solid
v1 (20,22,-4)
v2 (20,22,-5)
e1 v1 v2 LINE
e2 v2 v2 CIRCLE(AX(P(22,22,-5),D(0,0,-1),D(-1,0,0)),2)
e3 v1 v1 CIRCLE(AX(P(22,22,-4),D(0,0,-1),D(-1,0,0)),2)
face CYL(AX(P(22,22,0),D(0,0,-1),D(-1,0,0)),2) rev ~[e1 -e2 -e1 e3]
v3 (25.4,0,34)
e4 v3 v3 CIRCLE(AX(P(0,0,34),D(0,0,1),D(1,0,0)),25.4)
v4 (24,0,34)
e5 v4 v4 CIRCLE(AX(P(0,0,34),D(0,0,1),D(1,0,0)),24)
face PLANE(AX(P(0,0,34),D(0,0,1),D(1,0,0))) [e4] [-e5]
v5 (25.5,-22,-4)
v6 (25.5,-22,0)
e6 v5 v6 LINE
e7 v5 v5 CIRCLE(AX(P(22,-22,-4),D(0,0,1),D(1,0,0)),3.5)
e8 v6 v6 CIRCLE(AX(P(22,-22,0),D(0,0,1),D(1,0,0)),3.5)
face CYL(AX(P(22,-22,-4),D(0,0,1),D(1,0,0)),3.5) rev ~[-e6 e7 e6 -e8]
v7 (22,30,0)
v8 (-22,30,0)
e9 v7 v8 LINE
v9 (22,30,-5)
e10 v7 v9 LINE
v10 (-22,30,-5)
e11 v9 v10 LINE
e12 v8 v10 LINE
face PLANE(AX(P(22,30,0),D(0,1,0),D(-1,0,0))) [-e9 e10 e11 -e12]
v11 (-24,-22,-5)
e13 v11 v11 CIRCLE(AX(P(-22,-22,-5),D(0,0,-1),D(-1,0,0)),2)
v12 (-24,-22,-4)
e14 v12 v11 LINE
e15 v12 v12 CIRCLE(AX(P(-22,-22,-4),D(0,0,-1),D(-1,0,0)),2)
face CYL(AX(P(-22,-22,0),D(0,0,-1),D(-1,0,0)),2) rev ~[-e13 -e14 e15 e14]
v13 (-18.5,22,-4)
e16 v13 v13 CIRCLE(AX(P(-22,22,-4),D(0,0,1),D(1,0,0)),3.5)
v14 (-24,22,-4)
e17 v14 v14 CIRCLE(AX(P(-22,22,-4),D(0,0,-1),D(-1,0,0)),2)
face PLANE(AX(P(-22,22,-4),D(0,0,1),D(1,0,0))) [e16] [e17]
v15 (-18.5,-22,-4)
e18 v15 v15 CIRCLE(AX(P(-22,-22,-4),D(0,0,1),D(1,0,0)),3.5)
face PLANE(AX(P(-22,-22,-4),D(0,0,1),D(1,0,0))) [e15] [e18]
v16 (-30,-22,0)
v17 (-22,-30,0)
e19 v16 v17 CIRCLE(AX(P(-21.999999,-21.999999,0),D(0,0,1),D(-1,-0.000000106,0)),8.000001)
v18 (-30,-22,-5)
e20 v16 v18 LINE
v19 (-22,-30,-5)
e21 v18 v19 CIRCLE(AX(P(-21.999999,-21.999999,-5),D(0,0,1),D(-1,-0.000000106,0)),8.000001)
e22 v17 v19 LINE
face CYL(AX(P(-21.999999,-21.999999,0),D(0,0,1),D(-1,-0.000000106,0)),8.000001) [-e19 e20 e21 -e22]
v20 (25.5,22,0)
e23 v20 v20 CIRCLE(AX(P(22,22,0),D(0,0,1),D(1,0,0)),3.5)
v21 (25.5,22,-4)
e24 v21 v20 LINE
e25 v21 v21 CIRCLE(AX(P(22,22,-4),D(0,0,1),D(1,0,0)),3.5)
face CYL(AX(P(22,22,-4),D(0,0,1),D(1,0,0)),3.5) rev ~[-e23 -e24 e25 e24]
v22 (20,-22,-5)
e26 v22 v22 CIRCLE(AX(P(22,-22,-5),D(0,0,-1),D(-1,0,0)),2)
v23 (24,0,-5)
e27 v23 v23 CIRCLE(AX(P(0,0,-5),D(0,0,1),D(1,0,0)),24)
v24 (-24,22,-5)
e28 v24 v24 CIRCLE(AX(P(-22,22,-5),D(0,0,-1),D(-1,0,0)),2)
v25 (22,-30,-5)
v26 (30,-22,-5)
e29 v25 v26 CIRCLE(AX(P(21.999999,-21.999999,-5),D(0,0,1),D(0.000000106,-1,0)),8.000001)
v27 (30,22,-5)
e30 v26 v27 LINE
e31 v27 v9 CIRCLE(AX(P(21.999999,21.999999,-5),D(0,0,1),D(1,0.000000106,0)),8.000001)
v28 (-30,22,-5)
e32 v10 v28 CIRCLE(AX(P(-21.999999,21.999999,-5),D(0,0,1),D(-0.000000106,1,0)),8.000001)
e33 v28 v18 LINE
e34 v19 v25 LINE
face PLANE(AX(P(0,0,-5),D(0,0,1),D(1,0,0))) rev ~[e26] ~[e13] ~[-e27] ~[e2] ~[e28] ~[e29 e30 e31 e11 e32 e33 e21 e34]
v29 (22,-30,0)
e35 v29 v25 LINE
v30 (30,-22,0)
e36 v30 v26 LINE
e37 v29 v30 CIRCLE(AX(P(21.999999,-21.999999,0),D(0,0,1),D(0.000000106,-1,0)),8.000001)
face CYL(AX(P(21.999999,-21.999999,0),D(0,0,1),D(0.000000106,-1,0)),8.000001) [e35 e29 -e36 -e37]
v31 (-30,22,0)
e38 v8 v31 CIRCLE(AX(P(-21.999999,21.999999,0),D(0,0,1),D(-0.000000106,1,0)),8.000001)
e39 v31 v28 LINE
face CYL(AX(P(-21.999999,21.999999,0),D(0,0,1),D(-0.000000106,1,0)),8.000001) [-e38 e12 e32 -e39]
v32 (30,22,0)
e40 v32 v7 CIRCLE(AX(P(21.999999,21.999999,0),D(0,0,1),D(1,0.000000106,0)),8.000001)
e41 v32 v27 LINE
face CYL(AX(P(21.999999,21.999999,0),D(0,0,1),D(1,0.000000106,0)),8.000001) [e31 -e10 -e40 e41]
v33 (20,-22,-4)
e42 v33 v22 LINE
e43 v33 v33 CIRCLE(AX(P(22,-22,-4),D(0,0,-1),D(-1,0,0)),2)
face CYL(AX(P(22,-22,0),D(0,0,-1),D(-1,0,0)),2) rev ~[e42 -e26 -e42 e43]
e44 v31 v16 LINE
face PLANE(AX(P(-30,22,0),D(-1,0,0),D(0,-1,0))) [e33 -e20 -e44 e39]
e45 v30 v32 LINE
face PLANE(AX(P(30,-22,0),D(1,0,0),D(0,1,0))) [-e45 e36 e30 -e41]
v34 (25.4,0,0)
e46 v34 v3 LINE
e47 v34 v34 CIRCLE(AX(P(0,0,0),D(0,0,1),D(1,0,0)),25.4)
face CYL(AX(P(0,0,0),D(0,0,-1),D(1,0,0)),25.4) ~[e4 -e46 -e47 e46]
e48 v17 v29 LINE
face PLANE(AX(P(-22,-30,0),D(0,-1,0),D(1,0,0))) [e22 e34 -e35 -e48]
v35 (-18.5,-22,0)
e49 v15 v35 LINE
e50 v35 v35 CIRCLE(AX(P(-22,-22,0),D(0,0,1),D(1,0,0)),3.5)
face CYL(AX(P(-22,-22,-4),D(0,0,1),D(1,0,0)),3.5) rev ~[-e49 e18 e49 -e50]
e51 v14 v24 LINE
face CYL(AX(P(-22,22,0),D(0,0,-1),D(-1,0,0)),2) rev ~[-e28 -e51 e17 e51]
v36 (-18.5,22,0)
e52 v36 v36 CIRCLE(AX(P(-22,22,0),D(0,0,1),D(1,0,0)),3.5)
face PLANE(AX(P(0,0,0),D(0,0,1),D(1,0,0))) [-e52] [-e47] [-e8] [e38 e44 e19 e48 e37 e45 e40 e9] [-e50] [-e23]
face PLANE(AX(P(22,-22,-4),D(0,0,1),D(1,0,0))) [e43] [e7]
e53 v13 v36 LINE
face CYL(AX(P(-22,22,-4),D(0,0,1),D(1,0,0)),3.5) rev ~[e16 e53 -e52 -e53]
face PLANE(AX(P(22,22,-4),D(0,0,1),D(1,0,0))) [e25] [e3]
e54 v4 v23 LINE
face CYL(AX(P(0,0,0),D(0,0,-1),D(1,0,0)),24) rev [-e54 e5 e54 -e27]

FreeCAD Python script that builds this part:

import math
import FreeCAD as App
import Part
import Sketcher
from FreeCAD import Vector

doc = App.newDocument("Part")
body = doc.addObject("PartDesign::Body", "Body")

sketch1 = doc.addObject("Sketcher::SketchObject", "Sketch")
body.addObject(sketch1)
sketch1.AttachmentSupport = (doc.XY_Plane, [""])
sketch1.MapMode = "FlatFace"
sketch1.addGeometry(Part.LineSegment(Vector(22, 30, 0), Vector(-22, 30, 0)), False)
sketch1.addGeometry(Part.ArcOfCircle(Part.Circle(Vector(-22, 22, 0), Vector(0, 0, 1), 8), math.radians(90), math.radians(180)), False)
sketch1.addGeometry(Part.LineSegment(Vector(-30, 22, 0), Vector(-30, -22, 0)), False)
sketch1.addGeometry(Part.ArcOfCircle(Part.Circle(Vector(-22, -22, 0), Vector(0, 0, 1), 8), math.radians(-180), math.radians(-90)), False)
sketch1.addGeometry(Part.LineSegment(Vector(-22, -30, 0), Vector(22, -30, 0)), False)
sketch1.addGeometry(Part.ArcOfCircle(Part.Circle(Vector(22, -22, 0), Vector(0, 0, 1), 8), math.radians(-90), math.radians(0)), False)
sketch1.addGeometry(Part.LineSegment(Vector(30, -22, 0), Vector(30, 22, 0)), False)
sketch1.addGeometry(Part.ArcOfCircle(Part.Circle(Vector(22, 22, 0), Vector(0, 0, 1), 8), math.radians(0), math.radians(90)), False)
sketch1.addGeometry(Part.Circle(Vector(0, 0, 0), Vector(0, 0, 1), 24), False)
sketch1.addConstraint(Sketcher.Constraint("Tangent", 0, 2, 1, 1))
sketch1.addConstraint(Sketcher.Constraint("Tangent", 1, 2, 2, 1))
sketch1.addConstraint(Sketcher.Constraint("Tangent", 2, 2, 3, 1))
sketch1.addConstraint(Sketcher.Constraint("Tangent", 3, 2, 4, 1))
sketch1.addConstraint(Sketcher.Constraint("Tangent", 4, 2, 5, 1))
sketch1.addConstraint(Sketcher.Constraint("Tangent", 5, 2, 6, 1))
sketch1.addConstraint(Sketcher.Constraint("Tangent", 6, 2, 7, 1))
sketch1.addConstraint(Sketcher.Constraint("Tangent", 7, 2, 0, 1))
sketch1.addConstraint(Sketcher.Constraint("Horizontal", 0))
sketch1.addConstraint(Sketcher.Constraint("Vertical", 2))
sketch1.addConstraint(Sketcher.Constraint("Horizontal", 4))
sketch1.addConstraint(Sketcher.Constraint("Vertical", 6))
sketch1.addConstraint(Sketcher.Constraint("Coincident", 8, 3, -1, 1))
sketch1.addConstraint(Sketcher.Constraint("Equal", 1, 3))
sketch1.addConstraint(Sketcher.Constraint("Equal", 3, 5))
sketch1.addConstraint(Sketcher.Constraint("Equal", 5, 7))
sketch1.addConstraint(Sketcher.Constraint("Symmetric", 1, 3, 5, 3, -1, 1))
sketch1.addConstraint(Sketcher.Constraint("Equal", 4, 2))
sketch1.addConstraint(Sketcher.Constraint("Diameter", 8, 48.0))
sketch1.addConstraint(Sketcher.Constraint("Radius", 1, 8.000001))
sketch1.addConstraint(Sketcher.Constraint("DistanceX", 0, 2, 0, 1, 44.0))
pad1 = doc.addObject("PartDesign::Pad", "Pad")
body.addObject(pad1)
pad1.Profile = sketch1
pad1.Length = 5
pad1.Reversed = True

sketch2 = doc.addObject("Sketcher::SketchObject", "Sketch001")
body.addObject(sketch2)
sketch2.AttachmentSupport = (doc.XY_Plane, [""])
sketch2.MapMode = "FlatFace"
sketch2.addGeometry(Part.Circle(Vector(0, 0, 0), Vector(0, 0, 1), 25), False)
sketch2.addGeometry(Part.Circle(Vector(0, 0, 0), Vector(0, 0, 1), 24), False)
sketch2.addConstraint(Sketcher.Constraint("Coincident", 0, 3, -1, 1))
sketch2.addConstraint(Sketcher.Constraint("Coincident", 1, 3, -1, 1))
sketch2.addConstraint(Sketcher.Constraint("Diameter", 1, 48.0))
sketch2.addConstraint(Sketcher.Constraint("Diameter", 0, 50.8))
pad2 = doc.addObject("PartDesign::Pad", "Pad001")
body.addObject(pad2)
pad2.Profile = sketch2
pad2.Length = 34

sketch3 = doc.addObject("Sketcher::SketchObject", "Sketch002")
body.addObject(sketch3)
sketch3.AttachmentSupport = (doc.XY_Plane, [""])
sketch3.MapMode = "FlatFace"
sketch3.addGeometry(Part.Circle(Vector(-22, -22, 0), Vector(0, 0, 1), 2), False)
sketch3.addGeometry(Part.Circle(Vector(22, -22, 0), Vector(0, 0, 1), 2), False)
sketch3.addGeometry(Part.Circle(Vector(22, 22, 0), Vector(0, 0, 1), 2), False)
sketch3.addGeometry(Part.Circle(Vector(-22, 22, 0), Vector(0, 0, 1), 2), False)
sketch3.addConstraint(Sketcher.Constraint("Equal", 0, 1))
sketch3.addConstraint(Sketcher.Constraint("Equal", 1, 2))
sketch3.addConstraint(Sketcher.Constraint("Equal", 2, 3))
sketch3.addConstraint(Sketcher.Constraint("Symmetric", 0, 3, 2, 3, -1, 1))
sketch3.addConstraint(Sketcher.Constraint("Symmetric", 1, 3, 3, 3, -1, 1))
sketch3.addConstraint(Sketcher.Constraint("Symmetric", 0, 3, 1, 3, -2))
sketch3.addConstraint(Sketcher.Constraint("Diameter", 0, 4.0))
sketch3.addConstraint(Sketcher.Constraint("DistanceX", 0, 3, -1, 1, 22.0))
sketch3.addConstraint(Sketcher.Constraint("DistanceY", 0, 3, -1, 1, 22.0))
doc.recompute()
hole = doc.addObject("PartDesign::Hole", "Hole")
body.addObject(hole)
hole.Profile = sketch3
hole.ThreadType = "None"
hole.Diameter = 4
hole.DepthType = "ThroughAll"
hole.HoleCutType = "Counterbore"
hole.HoleCutDiameter = 7
hole.HoleCutDepth = 4

doc.recompute()
